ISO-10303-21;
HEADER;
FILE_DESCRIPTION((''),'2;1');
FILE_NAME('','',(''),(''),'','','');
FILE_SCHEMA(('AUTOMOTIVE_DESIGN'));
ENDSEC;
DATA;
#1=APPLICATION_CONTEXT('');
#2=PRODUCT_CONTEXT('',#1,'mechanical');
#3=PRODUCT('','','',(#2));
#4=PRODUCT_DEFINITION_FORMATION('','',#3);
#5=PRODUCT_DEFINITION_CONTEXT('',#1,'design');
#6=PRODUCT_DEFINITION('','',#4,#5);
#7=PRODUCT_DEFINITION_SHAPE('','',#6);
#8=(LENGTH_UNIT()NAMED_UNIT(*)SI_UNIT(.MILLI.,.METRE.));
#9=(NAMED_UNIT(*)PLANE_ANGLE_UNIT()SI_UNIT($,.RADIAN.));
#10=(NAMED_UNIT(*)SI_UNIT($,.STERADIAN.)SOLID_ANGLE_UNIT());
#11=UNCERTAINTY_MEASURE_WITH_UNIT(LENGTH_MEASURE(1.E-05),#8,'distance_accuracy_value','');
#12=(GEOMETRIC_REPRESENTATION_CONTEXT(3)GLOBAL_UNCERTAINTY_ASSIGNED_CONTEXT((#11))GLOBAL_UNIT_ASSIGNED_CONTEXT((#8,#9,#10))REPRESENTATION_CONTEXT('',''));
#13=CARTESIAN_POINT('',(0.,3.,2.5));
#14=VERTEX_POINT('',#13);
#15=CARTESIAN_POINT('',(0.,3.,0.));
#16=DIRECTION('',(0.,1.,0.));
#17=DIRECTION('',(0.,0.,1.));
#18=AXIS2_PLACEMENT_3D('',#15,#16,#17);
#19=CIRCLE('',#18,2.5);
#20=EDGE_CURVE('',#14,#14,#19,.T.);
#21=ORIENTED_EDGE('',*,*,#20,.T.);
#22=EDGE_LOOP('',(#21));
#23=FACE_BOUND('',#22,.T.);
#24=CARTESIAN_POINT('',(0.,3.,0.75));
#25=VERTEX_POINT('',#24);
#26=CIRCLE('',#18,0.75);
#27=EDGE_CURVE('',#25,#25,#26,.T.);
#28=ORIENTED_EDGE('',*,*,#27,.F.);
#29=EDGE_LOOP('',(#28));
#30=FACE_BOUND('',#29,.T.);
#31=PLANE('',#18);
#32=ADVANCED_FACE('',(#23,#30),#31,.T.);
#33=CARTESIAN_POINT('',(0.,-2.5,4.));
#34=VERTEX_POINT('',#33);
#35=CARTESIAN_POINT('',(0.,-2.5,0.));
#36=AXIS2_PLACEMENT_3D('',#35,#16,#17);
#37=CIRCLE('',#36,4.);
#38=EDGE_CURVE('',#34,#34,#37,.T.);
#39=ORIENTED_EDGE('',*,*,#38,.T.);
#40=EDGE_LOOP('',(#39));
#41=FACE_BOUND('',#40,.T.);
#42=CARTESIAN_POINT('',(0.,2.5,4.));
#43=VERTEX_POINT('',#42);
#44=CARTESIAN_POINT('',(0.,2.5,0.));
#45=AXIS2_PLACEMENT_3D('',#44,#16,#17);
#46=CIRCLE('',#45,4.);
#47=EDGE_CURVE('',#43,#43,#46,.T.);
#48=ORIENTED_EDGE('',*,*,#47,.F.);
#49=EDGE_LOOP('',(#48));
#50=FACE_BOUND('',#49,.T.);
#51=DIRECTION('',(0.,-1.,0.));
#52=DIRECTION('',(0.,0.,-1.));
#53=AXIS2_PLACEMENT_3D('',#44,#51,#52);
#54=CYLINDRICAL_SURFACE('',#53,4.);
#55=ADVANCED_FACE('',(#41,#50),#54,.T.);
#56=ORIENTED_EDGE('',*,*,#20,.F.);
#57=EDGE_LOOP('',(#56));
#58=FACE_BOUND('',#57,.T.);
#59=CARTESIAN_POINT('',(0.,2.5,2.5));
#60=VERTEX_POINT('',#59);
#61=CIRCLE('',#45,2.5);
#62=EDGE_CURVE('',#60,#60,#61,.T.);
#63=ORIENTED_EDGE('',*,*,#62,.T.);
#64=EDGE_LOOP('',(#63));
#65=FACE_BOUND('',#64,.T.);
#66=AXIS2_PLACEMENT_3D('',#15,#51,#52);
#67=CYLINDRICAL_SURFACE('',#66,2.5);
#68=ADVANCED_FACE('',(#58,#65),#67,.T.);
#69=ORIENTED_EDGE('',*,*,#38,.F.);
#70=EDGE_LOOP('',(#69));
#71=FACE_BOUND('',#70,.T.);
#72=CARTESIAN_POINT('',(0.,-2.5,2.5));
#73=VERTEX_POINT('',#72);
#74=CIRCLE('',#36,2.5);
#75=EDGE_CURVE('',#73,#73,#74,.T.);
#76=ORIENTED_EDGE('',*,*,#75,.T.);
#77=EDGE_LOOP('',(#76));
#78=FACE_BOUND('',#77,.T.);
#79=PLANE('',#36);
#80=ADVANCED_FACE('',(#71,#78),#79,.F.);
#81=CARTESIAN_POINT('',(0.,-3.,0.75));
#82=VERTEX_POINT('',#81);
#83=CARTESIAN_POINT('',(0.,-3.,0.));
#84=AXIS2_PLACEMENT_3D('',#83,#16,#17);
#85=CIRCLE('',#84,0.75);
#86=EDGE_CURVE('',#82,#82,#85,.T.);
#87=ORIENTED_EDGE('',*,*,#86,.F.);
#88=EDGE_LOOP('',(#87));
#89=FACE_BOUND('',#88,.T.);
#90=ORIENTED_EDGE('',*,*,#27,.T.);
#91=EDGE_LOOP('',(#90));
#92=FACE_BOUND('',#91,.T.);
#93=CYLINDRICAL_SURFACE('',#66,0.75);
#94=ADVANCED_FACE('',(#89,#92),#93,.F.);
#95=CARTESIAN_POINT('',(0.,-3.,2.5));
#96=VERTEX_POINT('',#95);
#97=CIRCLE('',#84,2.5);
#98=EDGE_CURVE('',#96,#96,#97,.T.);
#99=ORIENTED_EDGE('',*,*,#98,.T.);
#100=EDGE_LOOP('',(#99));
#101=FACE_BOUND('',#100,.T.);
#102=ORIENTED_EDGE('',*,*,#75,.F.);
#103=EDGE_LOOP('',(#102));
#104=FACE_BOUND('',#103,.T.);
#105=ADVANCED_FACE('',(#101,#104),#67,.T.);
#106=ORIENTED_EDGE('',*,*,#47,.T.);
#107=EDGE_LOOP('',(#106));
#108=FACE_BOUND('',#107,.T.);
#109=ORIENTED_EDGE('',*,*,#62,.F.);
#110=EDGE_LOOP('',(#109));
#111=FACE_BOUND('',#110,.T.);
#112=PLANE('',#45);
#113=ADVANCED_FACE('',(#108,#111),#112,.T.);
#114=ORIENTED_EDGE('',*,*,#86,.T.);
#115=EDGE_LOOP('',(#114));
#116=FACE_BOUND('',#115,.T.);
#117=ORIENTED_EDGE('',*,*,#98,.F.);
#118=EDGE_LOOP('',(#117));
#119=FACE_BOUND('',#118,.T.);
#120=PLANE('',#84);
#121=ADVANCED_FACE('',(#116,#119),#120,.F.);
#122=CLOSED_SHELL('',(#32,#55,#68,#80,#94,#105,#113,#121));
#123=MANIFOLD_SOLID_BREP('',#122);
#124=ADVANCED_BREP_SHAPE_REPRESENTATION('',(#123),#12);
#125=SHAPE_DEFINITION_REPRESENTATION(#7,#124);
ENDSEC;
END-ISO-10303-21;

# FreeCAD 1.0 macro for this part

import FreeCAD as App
import Part
import Sketcher

doc = App.newDocument("Part")
body = doc.addObject("PartDesign::Body", "Body")

sketch1 = body.newObject("Sketcher::SketchObject", "Sketch")
sketch1.AttachmentSupport = (doc.getObject("XZ_Plane"), [""])
sketch1.MapMode = "FlatFace"
sketch1.addGeometry(Part.Circle(App.Vector(0, 0, 0), App.Vector(0, 0, 1), 2.5), False)
sketch1.addGeometry(Part.Circle(App.Vector(0, 0, 0), App.Vector(0, 0, 1), 0.75), False)
sketch1.addConstraint(Sketcher.Constraint("Coincident", 0, 3, -1, 1))
sketch1.addConstraint(Sketcher.Constraint("Coincident", 1, 3, -1, 1))
sketch1.addConstraint(Sketcher.Constraint("Diameter", 0, 5.0))
sketch1.addConstraint(Sketcher.Constraint("Diameter", 1, 1.5))
pad1 = body.newObject("PartDesign::Pad", "Pad")
pad1.Profile = sketch1
pad1.Length = 6
pad1.Midplane = True

sketch2 = body.newObject("Sketcher::SketchObject", "Sketch001")
sketch2.AttachmentSupport = (doc.getObject("XZ_Plane"), [""])
sketch2.MapMode = "FlatFace"
sketch2.addGeometry(Part.Circle(App.Vector(0, 0, 0), App.Vector(0, 0, 1), 4), False)
sketch2.addGeometry(Part.Circle(App.Vector(0, 0, 0), App.Vector(0, 0, 1), 2.5), False)
sketch2.addConstraint(Sketcher.Constraint("Coincident", 0, 3, -1, 1))
sketch2.addConstraint(Sketcher.Constraint("Coincident", 1, 3, -1, 1))
sketch2.addConstraint(Sketcher.Constraint("Diameter", 0, 8.0))
sketch2.addConstraint(Sketcher.Constraint("Diameter", 1, 5.0))
pad2 = body.newObject("PartDesign::Pad", "Pad001")
pad2.Profile = sketch2
pad2.Length = 5
pad2.Midplane = True

doc.recompute()
